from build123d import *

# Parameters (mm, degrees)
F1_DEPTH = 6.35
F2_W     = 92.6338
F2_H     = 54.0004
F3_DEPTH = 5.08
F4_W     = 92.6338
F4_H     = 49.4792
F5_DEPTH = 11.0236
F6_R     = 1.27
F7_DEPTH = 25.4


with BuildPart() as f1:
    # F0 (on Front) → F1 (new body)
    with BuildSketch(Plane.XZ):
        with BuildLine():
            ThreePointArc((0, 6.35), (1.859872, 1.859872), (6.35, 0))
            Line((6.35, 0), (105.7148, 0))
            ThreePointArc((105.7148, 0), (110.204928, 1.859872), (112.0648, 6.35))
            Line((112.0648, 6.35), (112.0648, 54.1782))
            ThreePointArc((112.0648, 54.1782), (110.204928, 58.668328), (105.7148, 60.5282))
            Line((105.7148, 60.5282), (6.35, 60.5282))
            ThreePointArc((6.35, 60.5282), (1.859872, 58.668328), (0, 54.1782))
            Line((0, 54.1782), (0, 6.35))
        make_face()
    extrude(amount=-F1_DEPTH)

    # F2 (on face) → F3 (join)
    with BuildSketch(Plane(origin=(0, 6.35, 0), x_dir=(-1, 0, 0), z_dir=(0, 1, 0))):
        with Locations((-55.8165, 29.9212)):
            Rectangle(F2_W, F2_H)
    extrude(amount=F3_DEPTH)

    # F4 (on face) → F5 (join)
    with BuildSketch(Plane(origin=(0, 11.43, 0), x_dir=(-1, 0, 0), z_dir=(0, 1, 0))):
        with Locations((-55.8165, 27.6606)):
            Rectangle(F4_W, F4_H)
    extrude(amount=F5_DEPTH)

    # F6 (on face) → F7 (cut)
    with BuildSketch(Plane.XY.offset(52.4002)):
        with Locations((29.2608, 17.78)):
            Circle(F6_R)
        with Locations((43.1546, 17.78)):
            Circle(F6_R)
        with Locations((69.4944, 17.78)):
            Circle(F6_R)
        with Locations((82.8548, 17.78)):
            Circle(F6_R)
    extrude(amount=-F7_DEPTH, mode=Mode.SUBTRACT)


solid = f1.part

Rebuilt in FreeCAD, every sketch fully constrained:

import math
import FreeCAD as App
import Part
import Sketcher
Q = App.Units.Quantity

doc = App.newDocument("Part")
params = doc.addObject("Spreadsheet::Sheet", "Params")
for row, (alias, value) in enumerate([
    ("sketch1_radius", "0.25 in"),
    ("sketch1_width", "3.912 in"),
    ("sketch1_height", "1.883 in"),
    ("pad1_length", "0.25 in"),
    ("sketch2_width", "3.647 in"),
    ("sketch2_height", "2.126 in"),
    ("pad2_length", "0.2 in"),
    ("sketch3_width", "3.647 in"),
    ("sketch3_height", "1.948 in"),
    ("pad3_length", "0.434 in"),
    ("sketch4_diameter", "0.1 in"),
    ("pocket1_length", "1 in"),
], start=1):
    params.set(f"A{row}", alias)
    params.set(f"B{row}", "=" + value)
    params.setAlias(f"B{row}", alias)

body = doc.addObject("PartDesign::Body", "Body")

sketch1 = body.newObject("Sketcher::SketchObject", "Sketch")
sketch1.AttachmentSupport = (doc.getObject("XZ_Plane"), [""])
sketch1.MapMode = "FlatFace"
sketch1.addGeometry([
    Part.ArcOfCircle(Part.Circle(App.Vector(6.35, 6.35, 0), App.Vector(0, 0, 1), 6.35), math.radians(-179.999998), math.radians(-90.000002)),
    Part.LineSegment(App.Vector(6.35, 0, 0), App.Vector(105.7148, 0, 0)),
    Part.ArcOfCircle(Part.Circle(App.Vector(105.7148, 6.35, 0), App.Vector(0, 0, 1), 6.35), math.radians(-89.999998), math.radians(-0.000002)),
    Part.LineSegment(App.Vector(112.0648, 6.35, 0), App.Vector(112.0648, 54.1782, 0)),
    Part.ArcOfCircle(Part.Circle(App.Vector(105.7148, 54.1782, 0), App.Vector(0, 0, 1), 6.35), math.radians(0.000002), math.radians(89.999998)),
    Part.LineSegment(App.Vector(105.7148, 60.5282, 0), App.Vector(6.35, 60.5282, 0)),
    Part.ArcOfCircle(Part.Circle(App.Vector(6.35, 54.1782, 0), App.Vector(0, 0, 1), 6.35), math.radians(90.000002), math.radians(179.999998)),
    Part.LineSegment(App.Vector(0, 54.1782, 0), App.Vector(0, 6.35, 0)),
], False)
sketch1.addConstraint([
    Sketcher.Constraint("Tangent", 0, 2, 1, 1),
    Sketcher.Constraint("Tangent", 1, 2, 2, 1),
    Sketcher.Constraint("Tangent", 2, 2, 3, 1),
    Sketcher.Constraint("Tangent", 3, 2, 4, 1),
    Sketcher.Constraint("Tangent", 4, 2, 5, 1),
    Sketcher.Constraint("Tangent", 5, 2, 6, 1),
    Sketcher.Constraint("Tangent", 6, 2, 7, 1),
    Sketcher.Constraint("Tangent", 7, 2, 0, 1),
    Sketcher.Constraint("Horizontal", 1),
    Sketcher.Constraint("Vertical", 3),
    Sketcher.Constraint("Horizontal", 5),
    Sketcher.Constraint("Vertical", 7),
    Sketcher.Constraint("Equal", 0, 2),
    Sketcher.Constraint("Equal", 2, 4),
    Sketcher.Constraint("Equal", 4, 6),
    Sketcher.Constraint("PointOnObject", 0, 2, -1),
    Sketcher.Constraint("PointOnObject", 6, 2, -2),
    Sketcher.Constraint("Radius", 0, Q("0.25 in")),
    Sketcher.Constraint("DistanceX", 1, 1, 1, 2, Q("3.912 in")),
    Sketcher.Constraint("DistanceY", 3, 1, 3, 2, Q("1.883 in")),
])
sketch1.setExpression("Constraints[17]", "Params.sketch1_radius")
sketch1.setExpression("Constraints[18]", "Params.sketch1_width")
sketch1.setExpression("Constraints[19]", "Params.sketch1_height")
pad1 = body.newObject("PartDesign::Pad", "Pad")
pad1.Profile = sketch1
pad1.setExpression("Length", "Params.pad1_length")
pad1.Reversed = True

sketch2 = body.newObject("Sketcher::SketchObject", "Sketch001")
sketch2.AttachmentSupport = (doc.getObject("XZ_Plane"), [""])
sketch2.MapMode = "FlatFace"
sketch2.AttachmentOffset = App.Placement(App.Vector(0, 0, -0.25 * 25.4), App.Rotation())
sketch2.addGeometry([
    Part.LineSegment(App.Vector(102.1334, 56.9214, 0), App.Vector(102.1334, 2.921, 0)),
    Part.LineSegment(App.Vector(102.1334, 2.921, 0), App.Vector(9.4996, 2.921, 0)),
    Part.LineSegment(App.Vector(9.4996, 2.921, 0), App.Vector(9.4996, 56.9214, 0)),
    Part.LineSegment(App.Vector(9.4996, 56.9214, 0), App.Vector(102.1334, 56.9214, 0)),
], False)
sketch2.addConstraint([
    Sketcher.Constraint("Coincident", 0, 2, 1, 1),
    Sketcher.Constraint("Coincident", 1, 2, 2, 1),
    Sketcher.Constraint("Coincident", 2, 2, 3, 1),
    Sketcher.Constraint("Coincident", 3, 2, 0, 1),
    Sketcher.Constraint("Vertical", 0),
    Sketcher.Constraint("Horizontal", 1),
    Sketcher.Constraint("Vertical", 2),
    Sketcher.Constraint("Horizontal", 3),
    Sketcher.Constraint("DistanceX", 1, 2, 1, 1, Q("3.647 in")),
    Sketcher.Constraint("DistanceY", 0, 2, 0, 1, Q("2.126 in")),
    Sketcher.Constraint("DistanceX", -1, 1, 0, 2, Q("4.021 in")),
    Sketcher.Constraint("DistanceY", -1, 1, 0, 2, Q("0.115 in")),
])
sketch2.setExpression("Constraints[8]", "Params.sketch2_width")
sketch2.setExpression("Constraints[9]", "Params.sketch2_height")
pad2 = body.newObject("PartDesign::Pad", "Pad001")
pad2.Profile = sketch2
pad2.setExpression("Length", "Params.pad2_length")
pad2.Reversed = True

sketch3 = body.newObject("Sketcher::SketchObject", "Sketch002")
sketch3.AttachmentSupport = (doc.getObject("XZ_Plane"), [""])
sketch3.MapMode = "FlatFace"
sketch3.AttachmentOffset = App.Placement(App.Vector(0, 0, -0.45 * 25.4), App.Rotation())
sketch3.addGeometry([
    Part.LineSegment(App.Vector(102.1334, 52.4002, 0), App.Vector(102.1334, 2.921, 0)),
    Part.LineSegment(App.Vector(102.1334, 2.921, 0), App.Vector(9.4996, 2.921, 0)),
    Part.LineSegment(App.Vector(9.4996, 2.921, 0), App.Vector(9.4996, 52.4002, 0)),
    Part.LineSegment(App.Vector(9.4996, 52.4002, 0), App.Vector(102.1334, 52.4002, 0)),
], False)
sketch3.addConstraint([
    Sketcher.Constraint("Coincident", 0, 2, 1, 1),
    Sketcher.Constraint("Coincident", 1, 2, 2, 1),
    Sketcher.Constraint("Coincident", 2, 2, 3, 1),
    Sketcher.Constraint("Coincident", 3, 2, 0, 1),
    Sketcher.Constraint("Vertical", 0),
    Sketcher.Constraint("Horizontal", 1),
    Sketcher.Constraint("Vertical", 2),
    Sketcher.Constraint("Horizontal", 3),
    Sketcher.Constraint("DistanceX", 1, 2, 1, 1, Q("3.647 in")),
    Sketcher.Constraint("DistanceY", 0, 2, 0, 1, Q("1.948 in")),
    Sketcher.Constraint("DistanceX", -1, 1, 0, 2, Q("4.021 in")),
    Sketcher.Constraint("DistanceY", -1, 1, 0, 2, Q("0.115 in")),
])
sketch3.setExpression("Constraints[8]", "Params.sketch3_width")
sketch3.setExpression("Constraints[9]", "Params.sketch3_height")
pad3 = body.newObject("PartDesign::Pad", "Pad002")
pad3.Profile = sketch3
pad3.setExpression("Length", "Params.pad3_length")
pad3.Reversed = True

sketch4 = body.newObject("Sketcher::SketchObject", "Sketch003")
sketch4.AttachmentSupport = (doc.getObject("XY_Plane"), [""])
sketch4.MapMode = "FlatFace"
sketch4.AttachmentOffset = App.Placement(App.Vector(0, 0, 2.063 * 25.4), App.Rotation())
sketch4.addGeometry([
    Part.Circle(App.Vector(29.2608, 17.78, 0), App.Vector(0, 0, 1), 1.27),
    Part.Circle(App.Vector(43.1546, 17.78, 0), App.Vector(0, 0, 1), 1.27),
    Part.Circle(App.Vector(69.4944, 17.78, 0), App.Vector(0, 0, 1), 1.27),
    Part.Circle(App.Vector(82.8548, 17.78, 0), App.Vector(0, 0, 1), 1.27),
], False)
sketch4.addConstraint([
    Sketcher.Constraint("Equal", 0, 1),
    Sketcher.Constraint("Equal", 1, 2),
    Sketcher.Constraint("Equal", 2, 3),
    Sketcher.Constraint("Horizontal", 0, 3, 1, 3),
    Sketcher.Constraint("Horizontal", 1, 3, 2, 3),
    Sketcher.Constraint("Horizontal", 2, 3, 3, 3),
    Sketcher.Constraint("Diameter", 0, Q("0.1 in")),
    Sketcher.Constraint("DistanceY", -1, 1, 0, 3, Q("0.7 in")),
    Sketcher.Constraint("DistanceX", 0, 3, 3, 3, Q("2.11 in")),
    Sketcher.Constraint("DistanceX", -1, 1, 0, 3, Q("1.152 in")),
    Sketcher.Constraint("DistanceX", -1, 1, 1, 3, Q("1.699 in")),
    Sketcher.Constraint("DistanceX", -1, 1, 2, 3, Q("2.736 in")),
])
sketch4.setExpression("Constraints[6]", "Params.sketch4_diameter")
pocket1 = body.newObject("PartDesign::Pocket", "Pocket")
pocket1.Profile = sketch4
pocket1.setExpression("Length", "Params.pocket1_length")

doc.recompute()
